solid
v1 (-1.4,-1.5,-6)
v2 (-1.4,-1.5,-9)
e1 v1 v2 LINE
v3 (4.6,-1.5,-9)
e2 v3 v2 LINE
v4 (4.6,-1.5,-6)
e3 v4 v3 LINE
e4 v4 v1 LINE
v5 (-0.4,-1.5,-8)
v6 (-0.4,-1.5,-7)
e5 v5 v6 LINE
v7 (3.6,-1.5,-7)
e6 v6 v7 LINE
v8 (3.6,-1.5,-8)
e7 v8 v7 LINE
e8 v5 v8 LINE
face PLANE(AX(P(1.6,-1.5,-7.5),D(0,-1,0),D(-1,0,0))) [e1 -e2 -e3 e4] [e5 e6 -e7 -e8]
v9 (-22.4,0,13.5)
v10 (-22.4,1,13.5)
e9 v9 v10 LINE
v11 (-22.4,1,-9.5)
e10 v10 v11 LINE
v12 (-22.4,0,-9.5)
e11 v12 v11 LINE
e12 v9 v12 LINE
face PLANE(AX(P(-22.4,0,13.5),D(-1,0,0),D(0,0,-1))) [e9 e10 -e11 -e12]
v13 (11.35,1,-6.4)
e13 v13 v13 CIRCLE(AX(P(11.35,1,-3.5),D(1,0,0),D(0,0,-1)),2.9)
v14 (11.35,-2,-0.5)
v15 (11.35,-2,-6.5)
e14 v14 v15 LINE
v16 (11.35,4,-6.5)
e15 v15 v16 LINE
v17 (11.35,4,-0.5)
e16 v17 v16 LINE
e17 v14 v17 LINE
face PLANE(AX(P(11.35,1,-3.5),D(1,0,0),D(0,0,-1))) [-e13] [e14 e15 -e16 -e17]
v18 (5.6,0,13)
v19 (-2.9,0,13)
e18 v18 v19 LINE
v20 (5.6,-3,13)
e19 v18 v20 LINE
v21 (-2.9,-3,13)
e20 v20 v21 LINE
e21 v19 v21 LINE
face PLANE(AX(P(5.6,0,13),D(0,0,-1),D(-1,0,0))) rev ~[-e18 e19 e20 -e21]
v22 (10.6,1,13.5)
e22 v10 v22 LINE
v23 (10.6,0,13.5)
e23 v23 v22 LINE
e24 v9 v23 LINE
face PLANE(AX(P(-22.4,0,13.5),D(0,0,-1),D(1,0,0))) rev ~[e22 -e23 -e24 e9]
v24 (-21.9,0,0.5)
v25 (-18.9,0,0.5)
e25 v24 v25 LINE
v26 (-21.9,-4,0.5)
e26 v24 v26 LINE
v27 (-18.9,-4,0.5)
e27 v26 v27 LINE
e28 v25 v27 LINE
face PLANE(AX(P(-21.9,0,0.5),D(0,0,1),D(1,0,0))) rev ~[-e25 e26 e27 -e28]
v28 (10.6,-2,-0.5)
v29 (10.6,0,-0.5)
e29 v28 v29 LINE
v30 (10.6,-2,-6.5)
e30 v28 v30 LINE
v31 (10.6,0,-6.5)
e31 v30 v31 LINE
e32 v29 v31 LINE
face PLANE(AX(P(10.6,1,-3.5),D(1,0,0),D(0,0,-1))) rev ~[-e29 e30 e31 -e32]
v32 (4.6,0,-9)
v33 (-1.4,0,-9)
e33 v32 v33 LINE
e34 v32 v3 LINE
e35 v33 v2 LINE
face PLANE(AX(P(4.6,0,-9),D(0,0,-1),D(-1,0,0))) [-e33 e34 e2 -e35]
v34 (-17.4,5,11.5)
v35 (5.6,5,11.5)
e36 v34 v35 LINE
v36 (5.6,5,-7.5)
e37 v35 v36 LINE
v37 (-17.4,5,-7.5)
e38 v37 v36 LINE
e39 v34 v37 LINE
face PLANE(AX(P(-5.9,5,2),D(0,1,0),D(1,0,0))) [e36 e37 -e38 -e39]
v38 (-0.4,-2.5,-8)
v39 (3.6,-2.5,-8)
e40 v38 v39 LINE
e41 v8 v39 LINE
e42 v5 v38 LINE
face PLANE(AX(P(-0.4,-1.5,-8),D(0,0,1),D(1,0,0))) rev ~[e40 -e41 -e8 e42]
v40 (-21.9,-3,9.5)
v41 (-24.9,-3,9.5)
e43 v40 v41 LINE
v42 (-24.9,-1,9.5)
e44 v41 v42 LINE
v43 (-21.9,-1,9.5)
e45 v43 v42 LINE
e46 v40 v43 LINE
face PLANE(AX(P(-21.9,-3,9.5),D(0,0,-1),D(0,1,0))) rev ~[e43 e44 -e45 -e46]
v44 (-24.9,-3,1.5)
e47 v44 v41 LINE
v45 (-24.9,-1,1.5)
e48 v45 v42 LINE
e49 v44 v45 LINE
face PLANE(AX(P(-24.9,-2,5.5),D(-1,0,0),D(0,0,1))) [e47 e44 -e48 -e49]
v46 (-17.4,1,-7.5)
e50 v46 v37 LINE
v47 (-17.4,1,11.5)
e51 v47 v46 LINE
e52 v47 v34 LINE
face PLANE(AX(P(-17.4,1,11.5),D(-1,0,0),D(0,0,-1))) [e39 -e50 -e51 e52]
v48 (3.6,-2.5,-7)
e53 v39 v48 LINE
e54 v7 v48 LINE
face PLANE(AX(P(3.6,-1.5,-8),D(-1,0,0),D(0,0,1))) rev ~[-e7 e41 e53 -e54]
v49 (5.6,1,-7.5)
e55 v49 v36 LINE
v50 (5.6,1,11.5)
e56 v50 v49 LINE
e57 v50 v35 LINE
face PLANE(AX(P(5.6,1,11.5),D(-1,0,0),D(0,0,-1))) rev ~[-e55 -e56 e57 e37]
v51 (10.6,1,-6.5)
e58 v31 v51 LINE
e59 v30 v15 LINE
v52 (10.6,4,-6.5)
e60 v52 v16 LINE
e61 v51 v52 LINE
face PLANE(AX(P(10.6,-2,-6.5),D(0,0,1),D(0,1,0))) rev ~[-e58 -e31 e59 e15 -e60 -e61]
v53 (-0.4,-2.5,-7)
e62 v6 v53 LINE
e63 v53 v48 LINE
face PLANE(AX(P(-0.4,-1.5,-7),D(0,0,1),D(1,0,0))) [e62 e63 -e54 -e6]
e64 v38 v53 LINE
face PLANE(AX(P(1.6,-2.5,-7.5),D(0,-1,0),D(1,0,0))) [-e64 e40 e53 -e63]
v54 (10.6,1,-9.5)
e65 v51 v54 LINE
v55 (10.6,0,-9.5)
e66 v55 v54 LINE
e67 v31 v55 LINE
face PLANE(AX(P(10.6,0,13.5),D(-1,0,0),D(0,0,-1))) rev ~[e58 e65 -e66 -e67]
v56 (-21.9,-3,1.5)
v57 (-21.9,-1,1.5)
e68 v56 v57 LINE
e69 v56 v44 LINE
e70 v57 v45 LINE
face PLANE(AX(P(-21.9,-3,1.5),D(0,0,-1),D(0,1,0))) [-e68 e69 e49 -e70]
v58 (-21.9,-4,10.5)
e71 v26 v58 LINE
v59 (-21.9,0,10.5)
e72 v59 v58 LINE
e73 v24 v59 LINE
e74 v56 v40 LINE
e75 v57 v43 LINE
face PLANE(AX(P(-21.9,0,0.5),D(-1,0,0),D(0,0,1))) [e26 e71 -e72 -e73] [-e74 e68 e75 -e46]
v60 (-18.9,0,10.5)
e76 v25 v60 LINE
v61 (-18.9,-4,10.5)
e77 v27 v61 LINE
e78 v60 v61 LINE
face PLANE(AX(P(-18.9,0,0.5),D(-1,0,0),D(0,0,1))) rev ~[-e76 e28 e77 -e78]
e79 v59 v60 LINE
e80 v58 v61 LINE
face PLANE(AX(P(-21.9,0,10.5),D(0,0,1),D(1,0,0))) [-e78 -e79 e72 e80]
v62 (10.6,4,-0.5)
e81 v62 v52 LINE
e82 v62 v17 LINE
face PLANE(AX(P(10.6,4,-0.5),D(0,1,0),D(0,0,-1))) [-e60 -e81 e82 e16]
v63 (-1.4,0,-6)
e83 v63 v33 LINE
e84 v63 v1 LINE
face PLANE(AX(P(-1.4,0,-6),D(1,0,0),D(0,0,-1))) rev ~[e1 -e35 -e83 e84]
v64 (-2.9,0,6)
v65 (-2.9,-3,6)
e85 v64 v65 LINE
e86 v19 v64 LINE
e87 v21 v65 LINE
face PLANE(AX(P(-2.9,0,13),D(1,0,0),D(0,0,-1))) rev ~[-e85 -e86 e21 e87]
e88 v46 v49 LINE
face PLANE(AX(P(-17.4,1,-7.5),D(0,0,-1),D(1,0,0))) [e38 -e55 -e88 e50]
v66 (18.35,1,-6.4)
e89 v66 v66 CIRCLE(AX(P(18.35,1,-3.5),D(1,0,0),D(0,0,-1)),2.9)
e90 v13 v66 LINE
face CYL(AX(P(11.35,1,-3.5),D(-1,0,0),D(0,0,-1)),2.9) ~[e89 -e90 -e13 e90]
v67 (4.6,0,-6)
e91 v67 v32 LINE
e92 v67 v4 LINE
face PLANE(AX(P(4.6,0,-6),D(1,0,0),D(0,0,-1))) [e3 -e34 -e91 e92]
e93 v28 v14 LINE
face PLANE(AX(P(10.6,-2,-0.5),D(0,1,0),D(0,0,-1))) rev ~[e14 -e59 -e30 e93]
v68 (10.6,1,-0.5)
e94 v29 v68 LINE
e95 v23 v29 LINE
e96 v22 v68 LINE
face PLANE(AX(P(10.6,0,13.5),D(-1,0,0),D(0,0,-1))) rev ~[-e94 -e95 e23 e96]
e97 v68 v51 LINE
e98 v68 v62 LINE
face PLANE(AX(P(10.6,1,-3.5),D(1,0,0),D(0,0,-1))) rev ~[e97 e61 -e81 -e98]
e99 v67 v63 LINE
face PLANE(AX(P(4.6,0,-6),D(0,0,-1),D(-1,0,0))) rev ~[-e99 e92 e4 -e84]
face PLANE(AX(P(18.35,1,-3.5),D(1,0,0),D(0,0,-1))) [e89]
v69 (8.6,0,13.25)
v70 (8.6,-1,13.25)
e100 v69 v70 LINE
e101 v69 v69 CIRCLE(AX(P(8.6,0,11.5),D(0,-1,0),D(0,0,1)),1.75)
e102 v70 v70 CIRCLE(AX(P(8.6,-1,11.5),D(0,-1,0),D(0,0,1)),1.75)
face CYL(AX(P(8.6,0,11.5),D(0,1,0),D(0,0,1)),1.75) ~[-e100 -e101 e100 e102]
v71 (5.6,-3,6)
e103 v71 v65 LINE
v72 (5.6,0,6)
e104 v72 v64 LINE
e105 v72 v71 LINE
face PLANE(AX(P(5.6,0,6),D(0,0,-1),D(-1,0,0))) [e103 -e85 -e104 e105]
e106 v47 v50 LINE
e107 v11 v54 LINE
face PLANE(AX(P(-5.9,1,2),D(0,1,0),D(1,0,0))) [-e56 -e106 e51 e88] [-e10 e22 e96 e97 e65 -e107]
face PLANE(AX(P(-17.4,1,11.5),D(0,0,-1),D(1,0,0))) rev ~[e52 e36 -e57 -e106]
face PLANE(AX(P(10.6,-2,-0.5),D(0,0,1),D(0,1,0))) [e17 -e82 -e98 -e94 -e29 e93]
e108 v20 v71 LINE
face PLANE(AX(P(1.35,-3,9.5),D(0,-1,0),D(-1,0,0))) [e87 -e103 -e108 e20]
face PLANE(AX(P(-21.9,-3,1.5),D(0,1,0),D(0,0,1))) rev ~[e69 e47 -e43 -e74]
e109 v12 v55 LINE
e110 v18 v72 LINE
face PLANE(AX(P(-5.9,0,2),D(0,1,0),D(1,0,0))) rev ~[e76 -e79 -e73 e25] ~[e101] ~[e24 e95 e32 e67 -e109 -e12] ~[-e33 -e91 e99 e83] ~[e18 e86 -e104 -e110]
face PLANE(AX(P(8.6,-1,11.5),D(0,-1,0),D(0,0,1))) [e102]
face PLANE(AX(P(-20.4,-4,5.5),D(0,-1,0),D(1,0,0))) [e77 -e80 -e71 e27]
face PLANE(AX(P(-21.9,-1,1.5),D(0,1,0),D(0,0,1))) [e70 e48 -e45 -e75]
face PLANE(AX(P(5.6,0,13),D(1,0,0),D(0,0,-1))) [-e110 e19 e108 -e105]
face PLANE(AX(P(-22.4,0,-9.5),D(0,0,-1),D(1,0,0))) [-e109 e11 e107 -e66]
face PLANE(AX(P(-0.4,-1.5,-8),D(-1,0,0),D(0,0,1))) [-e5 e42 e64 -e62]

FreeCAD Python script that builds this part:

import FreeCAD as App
import Part
import Sketcher

V = App.Vector
Q = App.Units.Quantity

doc = App.newDocument("Part")
params = doc.addObject("Spreadsheet::Sheet", "Params")
for row, (alias, value) in enumerate([
    ("sketch1_width", "33 mm"),
    ("sketch1_height", "23 mm"),
    ("pad1_length", "1 mm"),
    ("sketch2_width", "23 mm"),
    ("sketch2_height", "19 mm"),
    ("pad2_length", "4 mm"),
    ("sketch3_height", "7 mm"),
    ("sketch3_width", "8.5 mm"),
    ("pad3_length", "3 mm"),
    ("sketch4_diameter", "3.5 mm"),
    ("pad4_length", "1 mm"),
    ("sketch5_width", "6 mm"),
    ("pad5_length", "0.75 mm"),
    ("sketch6_diameter", "5.8 mm"),
    ("pad6_length", "7 mm"),
    ("sketch7_width", "6 mm"),
    ("sketch7_height", "3 mm"),
    ("pad7_length", "1.5 mm"),
    ("sketch8_width", "4 mm"),
    ("sketch8_height", "1 mm"),
    ("pad8_length", "1 mm"),
    ("sketch9_width", "3 mm"),
    ("sketch9_height", "10 mm"),
    ("pad9_length", "4 mm"),
    ("sketch10_width", "2 mm"),
    ("sketch10_height", "8 mm"),
    ("pad10_length", "3 mm"),
], start=1):
    params.set(f"A{row}", alias)
    params.set(f"B{row}", "=" + value)
    params.setAlias(f"B{row}", alias)

body = doc.addObject("PartDesign::Body", "Body")

sketch1 = body.newObject("Sketcher::SketchObject", "Sketch")
sketch1.AttachmentSupport = (doc.getObject("XZ_Plane"), [""])
sketch1.MapMode = "FlatFace"
sketch1.addGeometry(Part.LineSegment(V(-22, -10, 0), V(-22, 14, 0)), False)
sketch1.addGeometry(Part.LineSegment(V(-22, 14, 0), V(11, 14, 0)), False)
sketch1.addGeometry(Part.LineSegment(V(11, 14, 0), V(11, -10, 0)), False)
sketch1.addGeometry(Part.LineSegment(V(11, -10, 0), V(-22, -10, 0)), False)
sketch1.addConstraint(Sketcher.Constraint("Coincident", 0, 2, 1, 1))
sketch1.addConstraint(Sketcher.Constraint("Coincident", 1, 2, 2, 1))
sketch1.addConstraint(Sketcher.Constraint("Coincident", 2, 2, 3, 1))
sketch1.addConstraint(Sketcher.Constraint("Coincident", 3, 2, 0, 1))
sketch1.addConstraint(Sketcher.Constraint("Vertical", 0))
sketch1.addConstraint(Sketcher.Constraint("Horizontal", 1))
sketch1.addConstraint(Sketcher.Constraint("Vertical", 2))
sketch1.addConstraint(Sketcher.Constraint("Horizontal", 3))
sketch1.addConstraint(Sketcher.Constraint("DistanceX", 1, 1, 1, 2, Q("33 mm")))
sketch1.addConstraint(Sketcher.Constraint("DistanceY", 0, 1, 0, 2, Q("23 mm")))
sketch1.addConstraint(Sketcher.Constraint("DistanceX", 0, 2, -1, 1, Q("22.4 mm")))
sketch1.addConstraint(Sketcher.Constraint("DistanceY", -1, 1, 0, 2, Q("13.5 mm")))
sketch1.setExpression("Constraints[8]", "Params.sketch1_width")
sketch1.setExpression("Constraints[9]", "Params.sketch1_height")
pad1 = body.newObject("PartDesign::Pad", "Pad")
pad1.Profile = sketch1
pad1.setExpression("Length", "Params.pad1_length")
pad1.Reversed = True

sketch2 = body.newObject("Sketcher::SketchObject", "Sketch001")
sketch2.AttachmentSupport = (doc.getObject("XZ_Plane"), [""])
sketch2.MapMode = "FlatFace"
sketch2.AttachmentOffset = App.Placement(V(0, 0, -1), App.Rotation())
sketch2.addGeometry(Part.LineSegment(V(-17, -8, 0), V(-17, 12, 0)), False)
sketch2.addGeometry(Part.LineSegment(V(-17, 12, 0), V(6, 12, 0)), False)
sketch2.addGeometry(Part.LineSegment(V(6, 12, 0), V(6, -8, 0)), False)
sketch2.addGeometry(Part.LineSegment(V(6, -8, 0), V(-17, -8, 0)), False)
sketch2.addConstraint(Sketcher.Constraint("Coincident", 0, 2, 1, 1))
sketch2.addConstraint(Sketcher.Constraint("Coincident", 1, 2, 2, 1))
sketch2.addConstraint(Sketcher.Constraint("Coincident", 2, 2, 3, 1))
sketch2.addConstraint(Sketcher.Constraint("Coincident", 3, 2, 0, 1))
sketch2.addConstraint(Sketcher.Constraint("Vertical", 0))
sketch2.addConstraint(Sketcher.Constraint("Horizontal", 1))
sketch2.addConstraint(Sketcher.Constraint("Vertical", 2))
sketch2.addConstraint(Sketcher.Constraint("Horizontal", 3))
sketch2.addConstraint(Sketcher.Constraint("DistanceX", 1, 1, 1, 2, Q("23 mm")))
sketch2.addConstraint(Sketcher.Constraint("DistanceY", 0, 1, 0, 2, Q("19 mm")))
sketch2.addConstraint(Sketcher.Constraint("DistanceX", 0, 2, -1, 1, Q("17.4 mm")))
sketch2.addConstraint(Sketcher.Constraint("DistanceY", -1, 1, 0, 2, Q("11.5 mm")))
sketch2.setExpression("Constraints[8]", "Params.sketch2_width")
sketch2.setExpression("Constraints[9]", "Params.sketch2_height")
pad2 = body.newObject("PartDesign::Pad", "Pad001")
pad2.Profile = sketch2
pad2.setExpression("Length", "Params.pad2_length")
pad2.Reversed = True

sketch3 = body.newObject("Sketcher::SketchObject", "Sketch002")
sketch3.AttachmentSupport = (doc.getObject("XZ_Plane"), [""])
sketch3.MapMode = "FlatFace"
sketch3.addGeometry(Part.LineSegment(V(6, 6, 0), V(6, 13, 0)), False)
sketch3.addGeometry(Part.LineSegment(V(6, 13, 0), V(-3, 13, 0)), False)
sketch3.addGeometry(Part.LineSegment(V(-3, 13, 0), V(-3, 6, 0)), False)
sketch3.addGeometry(Part.LineSegment(V(-3, 6, 0), V(6, 6, 0)), False)
sketch3.addConstraint(Sketcher.Constraint("Coincident", 0, 2, 1, 1))
sketch3.addConstraint(Sketcher.Constraint("Coincident", 1, 2, 2, 1))
sketch3.addConstraint(Sketcher.Constraint("Coincident", 2, 2, 3, 1))
sketch3.addConstraint(Sketcher.Constraint("Coincident", 3, 2, 0, 1))
sketch3.addConstraint(Sketcher.Constraint("Vertical", 0))
sketch3.addConstraint(Sketcher.Constraint("Horizontal", 1))
sketch3.addConstraint(Sketcher.Constraint("Vertical", 2))
sketch3.addConstraint(Sketcher.Constraint("Horizontal", 3))
sketch3.addConstraint(Sketcher.Constraint("DistanceY", 0, 1, 0, 2, Q("7 mm")))
sketch3.addConstraint(Sketcher.Constraint("DistanceX", 1, 2, 1, 1, Q("8.5 mm")))
sketch3.addConstraint(Sketcher.Constraint("DistanceY", -1, 1, 0, 2, Q("13 mm")))
sketch3.addConstraint(Sketcher.Constraint("DistanceX", -1, 1, 0, 2, Q("5.6 mm")))
sketch3.setExpression("Constraints[8]", "Params.sketch3_height")
sketch3.setExpression("Constraints[9]", "Params.sketch3_width")
pad3 = body.newObject("PartDesign::Pad", "Pad002")
pad3.Profile = sketch3
pad3.setExpression("Length", "Params.pad3_length")

sketch4 = body.newObject("Sketcher::SketchObject", "Sketch003")
sketch4.AttachmentSupport = (doc.getObject("XZ_Plane"), [""])
sketch4.MapMode = "FlatFace"
sketch4.addGeometry(Part.Circle(V(8.6, 11.5, 0), V(0, 0, 1), 1.8), False)
sketch4.addConstraint(Sketcher.Constraint("Diameter", 0, Q("3.5 mm")))
sketch4.addConstraint(Sketcher.Constraint("DistanceX", -1, 1, 0, 3, Q("8.6 mm")))
sketch4.addConstraint(Sketcher.Constraint("DistanceY", -1, 1, 0, 3, Q("11.5 mm")))
sketch4.setExpression("Constraints[0]", "Params.sketch4_diameter")
pad4 = body.newObject("PartDesign::Pad", "Pad003")
pad4.Profile = sketch4
pad4.setExpression("Length", "Params.pad4_length")

sketch5 = body.newObject("Sketcher::SketchObject", "Sketch004")
sketch5.AttachmentSupport = (doc.getObject("YZ_Plane"), [""])
sketch5.MapMode = "FlatFace"
sketch5.AttachmentOffset = App.Placement(V(0, 0, 10.6), App.Rotation())
sketch5.addGeometry(Part.LineSegment(V(4, 0, 0), V(-2, 0, 0)), False)
sketch5.addGeometry(Part.LineSegment(V(-2, 0, 0), V(-2, -6, 0)), False)
sketch5.addGeometry(Part.LineSegment(V(-2, -6, 0), V(4, -6, 0)), False)
sketch5.addGeometry(Part.LineSegment(V(4, -6, 0), V(4, 0, 0)), False)
sketch5.addConstraint(Sketcher.Constraint("Coincident", 0, 2, 1, 1))
sketch5.addConstraint(Sketcher.Constraint("Coincident", 1, 2, 2, 1))
sketch5.addConstraint(Sketcher.Constraint("Coincident", 2, 2, 3, 1))
sketch5.addConstraint(Sketcher.Constraint("Coincident", 3, 2, 0, 1))
sketch5.addConstraint(Sketcher.Constraint("Horizontal", 0))
sketch5.addConstraint(Sketcher.Constraint("Vertical", 1))
sketch5.addConstraint(Sketcher.Constraint("Horizontal", 2))
sketch5.addConstraint(Sketcher.Constraint("Vertical", 3))
sketch5.addConstraint(Sketcher.Constraint("Equal", 2, 1))
sketch5.addConstraint(Sketcher.Constraint("DistanceX", 0, 2, 0, 1, Q("6 mm")))
sketch5.addConstraint(Sketcher.Constraint("DistanceX", 0, 2, -1, 1, Q("2 mm")))
sketch5.addConstraint(Sketcher.Constraint("DistanceY", 0, 2, -1, 1, Q("0.5 mm")))
sketch5.setExpression("Constraints[9]", "Params.sketch5_width")
pad5 = body.newObject("PartDesign::Pad", "Pad004")
pad5.Profile = sketch5
pad5.setExpression("Length", "Params.pad5_length")

sketch6 = body.newObject("Sketcher::SketchObject", "Sketch005")
sketch6.AttachmentSupport = (doc.getObject("YZ_Plane"), [""])
sketch6.MapMode = "FlatFace"
sketch6.AttachmentOffset = App.Placement(V(0, 0, 11.35), App.Rotation())
sketch6.addGeometry(Part.Circle(V(1, -3.5, 0), V(0, 0, 1), 2.9), False)
sketch6.addConstraint(Sketcher.Constraint("Diameter", 0, Q("5.8 mm")))
sketch6.addConstraint(Sketcher.Constraint("DistanceX", -1, 1, 0, 3, Q("1 mm")))
sketch6.addConstraint(Sketcher.Constraint("DistanceY", 0, 3, -1, 1, Q("3.5 mm")))
sketch6.setExpression("Constraints[0]", "Params.sketch6_diameter")
pad6 = body.newObject("PartDesign::Pad", "Pad005")
pad6.Profile = sketch6
pad6.setExpression("Length", "Params.pad6_length")

sketch7 = body.newObject("Sketcher::SketchObject", "Sketch006")
sketch7.AttachmentSupport = (doc.getObject("XZ_Plane"), [""])
sketch7.MapMode = "FlatFace"
sketch7.addGeometry(Part.LineSegment(V(4.6, -9, 0), V(4.6, -6, 0)), False)
sketch7.addGeometry(Part.LineSegment(V(4.6, -6, 0), V(-1.4, -6, 0)), False)
sketch7.addGeometry(Part.LineSegment(V(-1.4, -6, 0), V(-1.4, -9, 0)), False)
sketch7.addGeometry(Part.LineSegment(V(-1.4, -9, 0), V(4.6, -9, 0)), False)
sketch7.addConstraint(Sketcher.Constraint("Coincident", 0, 2, 1, 1))
sketch7.addConstraint(Sketcher.Constraint("Coincident", 1, 2, 2, 1))
sketch7.addConstraint(Sketcher.Constraint("Coincident", 2, 2, 3, 1))
sketch7.addConstraint(Sketcher.Constraint("Coincident", 3, 2, 0, 1))
sketch7.addConstraint(Sketcher.Constraint("Vertical", 0))
sketch7.addConstraint(Sketcher.Constraint("Horizontal", 1))
sketch7.addConstraint(Sketcher.Constraint("Vertical", 2))
sketch7.addConstraint(Sketcher.Constraint("Horizontal", 3))
sketch7.addConstraint(Sketcher.Constraint("DistanceX", 1, 2, 1, 1, Q("6 mm")))
sketch7.addConstraint(Sketcher.Constraint("DistanceY", 0, 1, 0, 2, Q("3 mm")))
sketch7.addConstraint(Sketcher.Constraint("DistanceY", 0, 2, -1, 1, Q("6 mm")))
sketch7.addConstraint(Sketcher.Constraint("DistanceX", -1, 1, 0, 2, Q("4.6 mm")))
sketch7.setExpression("Constraints[8]", "Params.sketch7_width")
sketch7.setExpression("Constraints[9]", "Params.sketch7_height")
pad7 = body.newObject("PartDesign::Pad", "Pad006")
pad7.Profile = sketch7
pad7.setExpression("Length", "Params.pad7_length")

sketch8 = body.newObject("Sketcher::SketchObject", "Sketch007")
sketch8.AttachmentSupport = (doc.getObject("XZ_Plane"), [""])
sketch8.MapMode = "FlatFace"
sketch8.AttachmentOffset = App.Placement(V(0, 0, 1.5), App.Rotation())
sketch8.addGeometry(Part.LineSegment(V(-0.4, -7, 0), V(-0.4, -8, 0)), False)
sketch8.addGeometry(Part.LineSegment(V(-0.4, -8, 0), V(3.6, -8, 0)), False)
sketch8.addGeometry(Part.LineSegment(V(3.6, -8, 0), V(3.6, -7, 0)), False)
sketch8.addGeometry(Part.LineSegment(V(3.6, -7, 0), V(-0.4, -7, 0)), False)
sketch8.addConstraint(Sketcher.Constraint("Coincident", 0, 2, 1, 1))
sketch8.addConstraint(Sketcher.Constraint("Coincident", 1, 2, 2, 1))
sketch8.addConstraint(Sketcher.Constraint("Coincident", 2, 2, 3, 1))
sketch8.addConstraint(Sketcher.Constraint("Coincident", 3, 2, 0, 1))
sketch8.addConstraint(Sketcher.Constraint("Vertical", 0))
sketch8.addConstraint(Sketcher.Constraint("Horizontal", 1))
sketch8.addConstraint(Sketcher.Constraint("Vertical", 2))
sketch8.addConstraint(Sketcher.Constraint("Horizontal", 3))
sketch8.addConstraint(Sketcher.Constraint("DistanceX", 1, 1, 1, 2, Q("4 mm")))
sketch8.addConstraint(Sketcher.Constraint("DistanceY", 0, 2, 0, 1, Q("1 mm")))
sketch8.addConstraint(Sketcher.Constraint("DistanceY", 0, 2, -1, 1, Q("8 mm")))
sketch8.addConstraint(Sketcher.Constraint("DistanceX", 0, 2, -1, 1, Q("0.4 mm")))
sketch8.setExpression("Constraints[8]", "Params.sketch8_width")
sketch8.setExpression("Constraints[9]", "Params.sketch8_height")
pad8 = body.newObject("PartDesign::Pad", "Pad007")
pad8.Profile = sketch8
pad8.setExpression("Length", "Params.pad8_length")

sketch9 = body.newObject("Sketcher::SketchObject", "Sketch008")
sketch9.AttachmentSupport = (doc.getObject("XZ_Plane"), [""])
sketch9.MapMode = "FlatFace"
sketch9.addGeometry(Part.LineSegment(V(-21.9, 10.5, 0), V(-21.9, 0.5, 0)), False)
sketch9.addGeometry(Part.LineSegment(V(-21.9, 0.5, 0), V(-18.9, 0.5, 0)), False)
sketch9.addGeometry(Part.LineSegment(V(-18.9, 0.5, 0), V(-18.9, 10.5, 0)), False)
sketch9.addGeometry(Part.LineSegment(V(-18.9, 10.5, 0), V(-21.9, 10.5, 0)), False)
sketch9.addConstraint(Sketcher.Constraint("Coincident", 0, 2, 1, 1))
sketch9.addConstraint(Sketcher.Constraint("Coincident", 1, 2, 2, 1))
sketch9.addConstraint(Sketcher.Constraint("Coincident", 2, 2, 3, 1))
sketch9.addConstraint(Sketcher.Constraint("Coincident", 3, 2, 0, 1))
sketch9.addConstraint(Sketcher.Constraint("Vertical", 0))
sketch9.addConstraint(Sketcher.Constraint("Horizontal", 1))
sketch9.addConstraint(Sketcher.Constraint("Vertical", 2))
sketch9.addConstraint(Sketcher.Constraint("Horizontal", 3))
sketch9.addConstraint(Sketcher.Constraint("DistanceX", 1, 1, 1, 2, Q("3 mm")))
sketch9.addConstraint(Sketcher.Constraint("DistanceY", 0, 2, 0, 1, Q("10 mm")))
sketch9.addConstraint(Sketcher.Constraint("DistanceX", 0, 2, -1, 1, Q("21.9 mm")))
sketch9.addConstraint(Sketcher.Constraint("DistanceY", -1, 1, 0, 2, Q("0.5 mm")))
sketch9.setExpression("Constraints[8]", "Params.sketch9_width")
sketch9.setExpression("Constraints[9]", "Params.sketch9_height")
pad9 = body.newObject("PartDesign::Pad", "Pad008")
pad9.Profile = sketch9
pad9.setExpression("Length", "Params.pad9_length")

sketch10 = body.newObject("Sketcher::SketchObject", "Sketch009")
sketch10.AttachmentSupport = (doc.getObject("YZ_Plane"), [""])
sketch10.MapMode = "FlatFace"
sketch10.AttachmentOffset = App.Placement(V(0, 0, -21.9), App.Rotation())
sketch10.addGeometry(Part.LineSegment(V(-1, 1.5, 0), V(-3, 1.5, 0)), False)
sketch10.addGeometry(Part.LineSegment(V(-3, 1.5, 0), V(-3, 9.5, 0)), False)
sketch10.addGeometry(Part.LineSegment(V(-3, 9.5, 0), V(-1, 9.5, 0)), False)
sketch10.addGeometry(Part.LineSegment(V(-1, 9.5, 0), V(-1, 1.5, 0)), False)
sketch10.addConstraint(Sketcher.Constraint("Coincident", 0, 2, 1, 1))
sketch10.addConstraint(Sketcher.Constraint("Coincident", 1, 2, 2, 1))
sketch10.addConstraint(Sketcher.Constraint("Coincident", 2, 2, 3, 1))
sketch10.addConstraint(Sketcher.Constraint("Coincident", 3, 2, 0, 1))
sketch10.addConstraint(Sketcher.Constraint("Horizontal", 0))
sketch10.addConstraint(Sketcher.Constraint("Vertical", 1))
sketch10.addConstraint(Sketcher.Constraint("Horizontal", 2))
sketch10.addConstraint(Sketcher.Constraint("Vertical", 3))
sketch10.addConstraint(Sketcher.Constraint("DistanceX", 0, 2, 0, 1, Q("2 mm")))
sketch10.addConstraint(Sketcher.Constraint("DistanceY", 1, 1, 1, 2, Q("8 mm")))
sketch10.addConstraint(Sketcher.Constraint("DistanceX", 0, 2, -1, 1, Q("3 mm")))
sketch10.addConstraint(Sketcher.Constraint("DistanceY", -1, 1, 0, 2, Q("1.5 mm")))
sketch10.setExpression("Constraints[8]", "Params.sketch10_width")
sketch10.setExpression("Constraints[9]", "Params.sketch10_height")
pad10 = body.newObject("PartDesign::Pad", "Pad009")
pad10.Profile = sketch10
pad10.setExpression("Length", "Params.pad10_length")
pad10.Reversed = True

doc.recompute()
